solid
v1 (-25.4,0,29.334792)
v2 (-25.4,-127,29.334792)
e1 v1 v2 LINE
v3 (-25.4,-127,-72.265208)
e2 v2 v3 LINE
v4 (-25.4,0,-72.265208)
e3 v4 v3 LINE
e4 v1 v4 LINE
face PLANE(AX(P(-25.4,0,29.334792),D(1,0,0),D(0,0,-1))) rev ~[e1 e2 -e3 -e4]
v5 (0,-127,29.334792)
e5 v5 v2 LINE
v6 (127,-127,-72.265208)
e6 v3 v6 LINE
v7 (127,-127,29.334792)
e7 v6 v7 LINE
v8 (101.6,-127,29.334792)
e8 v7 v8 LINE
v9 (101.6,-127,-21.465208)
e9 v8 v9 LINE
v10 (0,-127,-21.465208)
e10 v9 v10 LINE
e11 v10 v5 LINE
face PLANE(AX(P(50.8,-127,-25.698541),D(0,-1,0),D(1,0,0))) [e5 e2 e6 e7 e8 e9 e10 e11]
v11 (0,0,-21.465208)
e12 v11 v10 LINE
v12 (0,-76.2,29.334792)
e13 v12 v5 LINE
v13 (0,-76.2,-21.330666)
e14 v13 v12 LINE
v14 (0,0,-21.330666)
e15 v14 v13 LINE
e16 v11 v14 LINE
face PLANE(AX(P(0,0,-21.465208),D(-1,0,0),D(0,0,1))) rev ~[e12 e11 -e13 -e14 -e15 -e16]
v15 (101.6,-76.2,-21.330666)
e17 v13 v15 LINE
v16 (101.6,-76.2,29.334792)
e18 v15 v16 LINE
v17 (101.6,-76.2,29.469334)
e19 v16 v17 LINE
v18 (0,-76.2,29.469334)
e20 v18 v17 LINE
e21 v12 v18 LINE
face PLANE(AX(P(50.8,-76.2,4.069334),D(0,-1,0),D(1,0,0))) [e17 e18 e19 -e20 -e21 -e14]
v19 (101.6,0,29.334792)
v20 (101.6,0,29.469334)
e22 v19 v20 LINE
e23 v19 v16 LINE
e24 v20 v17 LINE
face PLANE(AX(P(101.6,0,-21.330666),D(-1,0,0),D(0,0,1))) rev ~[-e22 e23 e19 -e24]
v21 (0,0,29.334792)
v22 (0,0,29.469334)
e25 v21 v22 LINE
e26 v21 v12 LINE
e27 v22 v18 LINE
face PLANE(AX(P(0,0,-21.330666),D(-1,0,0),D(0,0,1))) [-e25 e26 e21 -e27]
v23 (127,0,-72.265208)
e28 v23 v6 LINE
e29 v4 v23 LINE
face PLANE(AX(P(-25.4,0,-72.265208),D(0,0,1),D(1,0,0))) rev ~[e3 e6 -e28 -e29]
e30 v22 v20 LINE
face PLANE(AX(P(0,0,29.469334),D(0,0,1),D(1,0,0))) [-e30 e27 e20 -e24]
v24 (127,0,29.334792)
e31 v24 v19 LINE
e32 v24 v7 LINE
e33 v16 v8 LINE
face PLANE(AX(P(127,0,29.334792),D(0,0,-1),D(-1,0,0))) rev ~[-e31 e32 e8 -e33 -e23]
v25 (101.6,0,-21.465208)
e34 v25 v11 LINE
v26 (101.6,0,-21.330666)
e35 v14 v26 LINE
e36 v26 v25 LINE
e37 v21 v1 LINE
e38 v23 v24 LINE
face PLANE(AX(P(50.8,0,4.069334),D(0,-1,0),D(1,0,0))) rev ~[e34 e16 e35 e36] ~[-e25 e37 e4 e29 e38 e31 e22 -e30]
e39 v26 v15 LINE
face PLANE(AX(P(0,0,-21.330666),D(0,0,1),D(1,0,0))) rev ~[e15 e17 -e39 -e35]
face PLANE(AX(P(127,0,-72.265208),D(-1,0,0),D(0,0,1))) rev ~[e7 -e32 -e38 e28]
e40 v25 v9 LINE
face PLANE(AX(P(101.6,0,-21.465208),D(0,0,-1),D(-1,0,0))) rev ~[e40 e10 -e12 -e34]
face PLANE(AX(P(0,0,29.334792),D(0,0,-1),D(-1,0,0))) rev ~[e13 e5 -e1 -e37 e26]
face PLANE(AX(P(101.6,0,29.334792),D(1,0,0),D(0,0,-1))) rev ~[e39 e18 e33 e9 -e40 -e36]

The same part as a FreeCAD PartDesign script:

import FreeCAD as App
import Part
import Sketcher

V = App.Vector
Q = App.Units.Quantity


def add_polygon(sketch, points):
    """Adds a closed chain of lines whose ends are joined by coincident constraints."""
    first, n = sketch.GeometryCount, len(points)
    for a, b in zip(points, points[1:] + points[:1]):
        sketch.addGeometry(Part.LineSegment(App.Vector(*a, 0), App.Vector(*b, 0)), False)
    for i in range(n):
        sketch.addConstraint(Sketcher.Constraint("Coincident", first + i, 2, first + (i + 1) % n, 1))

doc = App.newDocument("Part")
params = doc.addObject("Spreadsheet::Sheet", "Params")
for row, (alias, value) in enumerate([
    ("sketch1_width", "6 in"),
    ("sketch1_width2", "1 in"),
    ("sketch1_height", "2 in"),
    ("pad1_length", "5 in"),
    ("sketch2_width", "4 in"),
    ("sketch2_height", "2 in"),
    ("pad2_length", "3 in"),
], start=1):
    params.set(f"A{row}", alias)
    params.set(f"B{row}", "=" + value)
    params.setAlias(f"B{row}", alias)

body = doc.addObject("PartDesign::Body", "Body")

# Sketch on XZ plane
sketch1 = body.newObject("Sketcher::SketchObject", "Sketch")
sketch1.AttachmentSupport = (doc.getObject("XZ_Plane"), [""])
sketch1.MapMode = "FlatFace"
add_polygon(sketch1, [(-25, 29), (-25, -72), (127, -72), (127, 29), (102, 29), (102, -21), (0, -21), (0, 29)])  # lines 0-7
sketch1.addConstraint(Sketcher.Constraint("Vertical", 0))
sketch1.addConstraint(Sketcher.Constraint("Horizontal", 1))
sketch1.addConstraint(Sketcher.Constraint("Vertical", 2))
sketch1.addConstraint(Sketcher.Constraint("Horizontal", 3))
sketch1.addConstraint(Sketcher.Constraint("Vertical", 4))
sketch1.addConstraint(Sketcher.Constraint("Horizontal", 5))
sketch1.addConstraint(Sketcher.Constraint("Vertical", 6))
sketch1.addConstraint(Sketcher.Constraint("Horizontal", 7))
sketch1.addConstraint(Sketcher.Constraint("PointOnObject", 5, 2, -2))
sketch1.addConstraint(Sketcher.Constraint("Horizontal", 3, 2, 6, 2))
sketch1.addConstraint(Sketcher.Constraint("Equal", 3, 7))
sketch1.addConstraint(Sketcher.Constraint("Equal", 5, 0))
sketch1.addConstraint(Sketcher.Constraint("DistanceX", 1, 1, 1, 2, Q("6 in")))
sketch1.addConstraint(Sketcher.Constraint("DistanceX", 3, 2, 3, 1, Q("1 in")))
sketch1.addConstraint(Sketcher.Constraint("DistanceY", 4, 2, 4, 1, Q("2 in")))
sketch1.addConstraint(Sketcher.Constraint("DistanceY", 0, 2, -1, 1, 72.265208))
sketch1.setExpression("Constraints[20]", "Params.sketch1_width")
sketch1.setExpression("Constraints[21]", "Params.sketch1_width2")
sketch1.setExpression("Constraints[22]", "Params.sketch1_height")
pad1 = body.newObject("PartDesign::Pad", "Pad")
pad1.Profile = sketch1
pad1.setExpression("Length", "Params.pad1_length")

# Sketch on XZ plane
sketch2 = body.newObject("Sketcher::SketchObject", "Sketch001")
sketch2.AttachmentSupport = (doc.getObject("XZ_Plane"), [""])
sketch2.MapMode = "FlatFace"
add_polygon(sketch2, [(0, 29), (0, -21), (102, -21), (102, 29)])  # lines 0-3
sketch2.addConstraint(Sketcher.Constraint("Vertical", 0))
sketch2.addConstraint(Sketcher.Constraint("Horizontal", 1))
sketch2.addConstraint(Sketcher.Constraint("Vertical", 2))
sketch2.addConstraint(Sketcher.Constraint("Horizontal", 3))
sketch2.addConstraint(Sketcher.Constraint("PointOnObject", 0, 2, -2))
sketch2.addConstraint(Sketcher.Constraint("DistanceX", 1, 1, 1, 2, Q("4 in")))
sketch2.addConstraint(Sketcher.Constraint("DistanceY", 0, 2, 0, 1, Q("2 in")))
sketch2.addConstraint(Sketcher.Constraint("DistanceY", 0, 2, -1, 1, 21.330666))
sketch2.setExpression("Constraints[9]", "Params.sketch2_width")
sketch2.setExpression("Constraints[10]", "Params.sketch2_height")
pad2 = body.newObject("PartDesign::Pad", "Pad001")
pad2.Profile = sketch2
pad2.setExpression("Length", "Params.pad2_length")

doc.recompute()
